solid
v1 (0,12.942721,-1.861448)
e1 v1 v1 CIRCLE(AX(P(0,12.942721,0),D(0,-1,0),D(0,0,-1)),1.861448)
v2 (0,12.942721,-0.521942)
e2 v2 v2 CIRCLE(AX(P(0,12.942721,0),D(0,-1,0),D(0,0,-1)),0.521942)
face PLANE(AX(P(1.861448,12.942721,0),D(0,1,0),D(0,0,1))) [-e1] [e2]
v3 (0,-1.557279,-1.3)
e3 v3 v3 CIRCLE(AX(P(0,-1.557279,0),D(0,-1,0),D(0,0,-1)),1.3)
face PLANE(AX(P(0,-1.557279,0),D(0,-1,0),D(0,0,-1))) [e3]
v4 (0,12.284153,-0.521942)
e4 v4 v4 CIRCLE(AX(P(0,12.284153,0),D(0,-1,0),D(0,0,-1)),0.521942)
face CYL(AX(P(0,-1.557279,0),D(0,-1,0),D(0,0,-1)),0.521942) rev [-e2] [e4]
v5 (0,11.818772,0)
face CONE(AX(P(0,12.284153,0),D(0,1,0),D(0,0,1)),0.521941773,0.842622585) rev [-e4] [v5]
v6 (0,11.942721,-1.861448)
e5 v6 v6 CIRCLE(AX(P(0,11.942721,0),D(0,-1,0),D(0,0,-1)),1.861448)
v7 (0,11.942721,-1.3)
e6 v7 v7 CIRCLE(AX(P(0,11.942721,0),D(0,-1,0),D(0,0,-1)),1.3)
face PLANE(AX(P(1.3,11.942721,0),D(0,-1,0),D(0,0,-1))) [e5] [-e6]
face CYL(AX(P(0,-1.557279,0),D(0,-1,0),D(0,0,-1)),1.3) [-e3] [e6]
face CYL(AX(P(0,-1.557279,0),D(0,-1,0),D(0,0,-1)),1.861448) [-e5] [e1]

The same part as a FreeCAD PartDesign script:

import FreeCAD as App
import Part
import Sketcher

doc = App.newDocument("Part")
params = doc.addObject("Spreadsheet::Sheet", "Params")
for row, (alias, value) in enumerate([
    ("sketch1_height", "1 mm"),
    ("sketch1_width", "1.3 mm"),
    ("sketch1_height2", "13.5 mm"),
    ("revolution_angle", "360 deg"),
], start=1):
    params.set(f"A{row}", alias)
    params.set(f"B{row}", "=" + value)
    params.setAlias(f"B{row}", alias)

body = doc.addObject("PartDesign::Body", "Body")

sketch1 = doc.addObject("Sketcher::SketchObject", "Sketch")
body.addObject(sketch1)
sketch1.AttachmentSupport = (doc.XY_Plane, [""])
sketch1.MapMode = "FlatFace"
sketch1.addGeometry([
    Part.LineSegment(App.Vector(0.5, 12.9, 0), App.Vector(0.5, 12.3, 0)),
    Part.LineSegment(App.Vector(0.5, 12.3, 0), App.Vector(0, 11.8, 0)),
    Part.LineSegment(App.Vector(0, 11.8, 0), App.Vector(0, -1.6, 0)),
    Part.LineSegment(App.Vector(0, -1.6, 0), App.Vector(1.3, -1.6, 0)),
    Part.LineSegment(App.Vector(1.3, -1.6, 0), App.Vector(1.3, 11.9, 0)),
    Part.LineSegment(App.Vector(1.3, 11.9, 0), App.Vector(1.9, 11.9, 0)),
    Part.LineSegment(App.Vector(1.9, 11.9, 0), App.Vector(1.9, 12.9, 0)),
    Part.LineSegment(App.Vector(1.9, 12.9, 0), App.Vector(0.5, 12.9, 0)),
], False)
sketch1.addConstraint([
    Sketcher.Constraint("Coincident", 0, 2, 1, 1),
    Sketcher.Constraint("Coincident", 1, 2, 2, 1),
    Sketcher.Constraint("Coincident", 2, 2, 3, 1),
    Sketcher.Constraint("Coincident", 3, 2, 4, 1),
    Sketcher.Constraint("Coincident", 4, 2, 5, 1),
    Sketcher.Constraint("Coincident", 5, 2, 6, 1),
    Sketcher.Constraint("Coincident", 6, 2, 7, 1),
    Sketcher.Constraint("Coincident", 7, 2, 0, 1),
    Sketcher.Constraint("Vertical", 0),
    Sketcher.Constraint("Vertical", 2),
    Sketcher.Constraint("Horizontal", 3),
    Sketcher.Constraint("Vertical", 4),
    Sketcher.Constraint("Horizontal", 5),
    Sketcher.Constraint("Vertical", 6),
    Sketcher.Constraint("Horizontal", 7),
    Sketcher.Constraint("PointOnObject", 1, 2, -2),
    Sketcher.Constraint("DistanceY", 6, 1, 6, 2, 1.0),
    Sketcher.Constraint("DistanceX", 3, 1, 3, 2, 1.3),
    Sketcher.Constraint("DistanceY", 4, 1, 4, 2, 13.5),
    Sketcher.Constraint("DistanceY", 2, 2, 2, 1, 13.376051),
    Sketcher.Constraint("DistanceX", 5, 1, 5, 2, 0.561448),
    Sketcher.Constraint("DistanceX", 7, 2, 7, 1, 1.339506),
    Sketcher.Constraint("DistanceY", 0, 2, 0, 1, 0.658568),
    Sketcher.Constraint("DistanceY", 2, 2, -1, 1, 1.557279),
])
sketch1.setExpression("Constraints[16]", "Params.sketch1_height")
sketch1.setExpression("Constraints[17]", "Params.sketch1_width")
sketch1.setExpression("Constraints[18]", "Params.sketch1_height2")
revolution = doc.addObject("PartDesign::Revolution", "Revolution")
body.addObject(revolution)
revolution.Profile = sketch1
revolution.ReferenceAxis = (sketch1, ["V_Axis"])
revolution.setExpression("Angle", "Params.revolution_angle")

doc.recompute()
